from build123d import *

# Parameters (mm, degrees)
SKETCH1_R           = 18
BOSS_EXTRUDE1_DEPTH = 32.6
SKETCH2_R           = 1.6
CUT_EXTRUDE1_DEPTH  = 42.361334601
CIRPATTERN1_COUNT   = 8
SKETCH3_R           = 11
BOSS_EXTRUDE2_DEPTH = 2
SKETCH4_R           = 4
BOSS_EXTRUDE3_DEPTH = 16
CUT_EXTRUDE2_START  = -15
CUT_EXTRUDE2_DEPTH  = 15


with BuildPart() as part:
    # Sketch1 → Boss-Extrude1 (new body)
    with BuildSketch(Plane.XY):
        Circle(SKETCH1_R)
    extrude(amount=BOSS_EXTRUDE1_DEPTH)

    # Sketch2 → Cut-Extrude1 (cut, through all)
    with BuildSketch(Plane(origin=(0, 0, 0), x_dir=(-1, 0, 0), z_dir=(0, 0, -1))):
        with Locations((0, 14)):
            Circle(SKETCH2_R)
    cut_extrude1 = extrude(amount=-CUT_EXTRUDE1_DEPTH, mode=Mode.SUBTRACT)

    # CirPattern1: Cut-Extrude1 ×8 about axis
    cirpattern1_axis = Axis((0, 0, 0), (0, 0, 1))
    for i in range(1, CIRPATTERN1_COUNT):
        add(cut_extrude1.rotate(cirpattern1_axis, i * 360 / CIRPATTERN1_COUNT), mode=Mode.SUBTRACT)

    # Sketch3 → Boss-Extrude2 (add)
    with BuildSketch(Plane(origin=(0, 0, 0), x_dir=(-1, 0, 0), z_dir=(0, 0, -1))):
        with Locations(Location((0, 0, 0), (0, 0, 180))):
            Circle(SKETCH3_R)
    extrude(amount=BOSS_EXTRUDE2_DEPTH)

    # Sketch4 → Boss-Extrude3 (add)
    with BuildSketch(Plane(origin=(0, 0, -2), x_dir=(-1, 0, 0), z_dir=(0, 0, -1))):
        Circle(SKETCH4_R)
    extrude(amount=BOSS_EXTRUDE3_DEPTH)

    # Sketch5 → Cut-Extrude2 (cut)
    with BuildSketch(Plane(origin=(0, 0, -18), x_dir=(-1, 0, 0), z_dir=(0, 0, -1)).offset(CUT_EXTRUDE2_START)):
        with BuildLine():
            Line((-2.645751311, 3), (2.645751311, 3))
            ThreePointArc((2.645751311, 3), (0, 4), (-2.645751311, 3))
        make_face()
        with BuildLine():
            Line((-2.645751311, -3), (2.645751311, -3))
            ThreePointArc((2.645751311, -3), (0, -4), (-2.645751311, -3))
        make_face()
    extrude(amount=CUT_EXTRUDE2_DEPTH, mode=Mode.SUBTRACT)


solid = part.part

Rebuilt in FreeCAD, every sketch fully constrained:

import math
import FreeCAD as App
import Part
import Sketcher
from FreeCAD import Vector
Q = App.Units.Quantity

doc = App.newDocument("Part")
body = doc.addObject("PartDesign::Body", "Body")

# Sketch on XY plane
sketch1 = body.newObject("Sketcher::SketchObject", "Sketch")
sketch1.AttachmentSupport = (doc.getObject("XY_Plane"), [""])
sketch1.MapMode = "FlatFace"
sketch1.addGeometry(Part.Circle(Vector(0, 0, 0), Vector(0, 0, 1), 18), False)
sketch1.addConstraint([
    Sketcher.Constraint("Coincident", 0, 3, -1, 1),
    Sketcher.Constraint("Diameter", 0, Q("36 mm")),
])
pad1 = body.newObject("PartDesign::Pad", "Pad")
pad1.Profile = sketch1
pad1.Length = 32.6

# Sketch on XY plane
sketch2 = body.newObject("Sketcher::SketchObject", "Sketch001")
sketch2.AttachmentSupport = (doc.getObject("XY_Plane"), [""])
sketch2.MapMode = "FlatFace"
sketch2.addGeometry(Part.Circle(Vector(0, 14, 0), Vector(0, 0, 1), 1.6), False)
sketch2.addConstraint([
    Sketcher.Constraint("PointOnObject", 0, 3, -2),
    Sketcher.Constraint("Diameter", 0, Q("3.2 mm")),
    Sketcher.Constraint("DistanceY", -1, 1, 0, 3, Q("14 mm")),
])
pocket1 = body.newObject("PartDesign::Pocket", "Pocket")
pocket1.Profile = sketch2
pocket1.Type = "ThroughAll"
pocket1.Reversed = True
doc.recompute()

polarpattern = body.newObject("PartDesign::PolarPattern", "PolarPattern")
polarpattern.Originals = [pocket1]
polarpattern.Axis = (doc.getObject("Z_Axis"), [""])
polarpattern.Angle = 360
polarpattern.Occurrences = 8
body.Tip = polarpattern

# Sketch on XY plane
sketch3 = body.newObject("Sketcher::SketchObject", "Sketch002")
sketch3.AttachmentSupport = (doc.getObject("XY_Plane"), [""])
sketch3.MapMode = "FlatFace"
sketch3.addGeometry(Part.Circle(Vector(0, 0, 0), Vector(0, 0, 1), 11), False)
sketch3.addConstraint([
    Sketcher.Constraint("Coincident", 0, 3, -1, 1),
    Sketcher.Constraint("Diameter", 0, Q("22 mm")),
])
pad2 = body.newObject("PartDesign::Pad", "Pad001")
pad2.Profile = sketch3
pad2.Length = 2
pad2.Reversed = True

# Sketch on XY plane
sketch4 = body.newObject("Sketcher::SketchObject", "Sketch003")
sketch4.AttachmentSupport = (doc.getObject("XY_Plane"), [""])
sketch4.MapMode = "FlatFace"
sketch4.AttachmentOffset = App.Placement(Vector(0, 0, -2), App.Rotation())
sketch4.addGeometry(Part.Circle(Vector(0, 0, 0), Vector(0, 0, 1), 4), False)
sketch4.addConstraint([
    Sketcher.Constraint("Coincident", 0, 3, -1, 1),
    Sketcher.Constraint("Diameter", 0, Q("8 mm")),
])
pad3 = body.newObject("PartDesign::Pad", "Pad002")
pad3.Profile = sketch4
pad3.Length = 16
pad3.Reversed = True

# Sketch on XY plane
sketch5 = body.newObject("Sketcher::SketchObject", "Sketch004")
sketch5.AttachmentSupport = (doc.getObject("XY_Plane"), [""])
sketch5.MapMode = "FlatFace"
sketch5.AttachmentOffset = App.Placement(Vector(0, 0, -3), App.Rotation())
sketch5.addGeometry([
    Part.LineSegment(Vector(2.6, 3, 0), Vector(-2.6, 3, 0)),
    Part.ArcOfCircle(Part.Circle(Vector(0, 0, 0), Vector(0, 0, 1), 4), math.radians(49), math.radians(131)),
    Part.LineSegment(Vector(-2.6, -3, 0), Vector(2.6, -3, 0)),
    Part.ArcOfCircle(Part.Circle(Vector(0, 0, 0), Vector(0, 0, 1), 4), math.radians(-131), math.radians(-49)),
], False)
sketch5.addConstraint([
    Sketcher.Constraint("Coincident", 0, 1, 1, 1),
    Sketcher.Constraint("Coincident", 1, 2, 0, 2),
    Sketcher.Constraint("Coincident", 2, 1, 3, 1),
    Sketcher.Constraint("Coincident", 3, 2, 2, 2),
    Sketcher.Constraint("Horizontal", 0),
    Sketcher.Constraint("Horizontal", 2),
    Sketcher.Constraint("Coincident", 1, 3, -1, 1),
    Sketcher.Constraint("Coincident", 3, 3, -1, 1),
    Sketcher.Constraint("Equal", 1, 3),
    Sketcher.Constraint("Vertical", 1, 2, 2, 1),
    Sketcher.Constraint("Radius", 1, Q("4 mm")),
    Sketcher.Constraint("DistanceY", -1, 1, 0, 1, Q("3 mm")),
])
pocket2 = body.newObject("PartDesign::Pocket", "Pocket001")
pocket2.Profile = sketch5
pocket2.Length = 15

doc.recompute()
